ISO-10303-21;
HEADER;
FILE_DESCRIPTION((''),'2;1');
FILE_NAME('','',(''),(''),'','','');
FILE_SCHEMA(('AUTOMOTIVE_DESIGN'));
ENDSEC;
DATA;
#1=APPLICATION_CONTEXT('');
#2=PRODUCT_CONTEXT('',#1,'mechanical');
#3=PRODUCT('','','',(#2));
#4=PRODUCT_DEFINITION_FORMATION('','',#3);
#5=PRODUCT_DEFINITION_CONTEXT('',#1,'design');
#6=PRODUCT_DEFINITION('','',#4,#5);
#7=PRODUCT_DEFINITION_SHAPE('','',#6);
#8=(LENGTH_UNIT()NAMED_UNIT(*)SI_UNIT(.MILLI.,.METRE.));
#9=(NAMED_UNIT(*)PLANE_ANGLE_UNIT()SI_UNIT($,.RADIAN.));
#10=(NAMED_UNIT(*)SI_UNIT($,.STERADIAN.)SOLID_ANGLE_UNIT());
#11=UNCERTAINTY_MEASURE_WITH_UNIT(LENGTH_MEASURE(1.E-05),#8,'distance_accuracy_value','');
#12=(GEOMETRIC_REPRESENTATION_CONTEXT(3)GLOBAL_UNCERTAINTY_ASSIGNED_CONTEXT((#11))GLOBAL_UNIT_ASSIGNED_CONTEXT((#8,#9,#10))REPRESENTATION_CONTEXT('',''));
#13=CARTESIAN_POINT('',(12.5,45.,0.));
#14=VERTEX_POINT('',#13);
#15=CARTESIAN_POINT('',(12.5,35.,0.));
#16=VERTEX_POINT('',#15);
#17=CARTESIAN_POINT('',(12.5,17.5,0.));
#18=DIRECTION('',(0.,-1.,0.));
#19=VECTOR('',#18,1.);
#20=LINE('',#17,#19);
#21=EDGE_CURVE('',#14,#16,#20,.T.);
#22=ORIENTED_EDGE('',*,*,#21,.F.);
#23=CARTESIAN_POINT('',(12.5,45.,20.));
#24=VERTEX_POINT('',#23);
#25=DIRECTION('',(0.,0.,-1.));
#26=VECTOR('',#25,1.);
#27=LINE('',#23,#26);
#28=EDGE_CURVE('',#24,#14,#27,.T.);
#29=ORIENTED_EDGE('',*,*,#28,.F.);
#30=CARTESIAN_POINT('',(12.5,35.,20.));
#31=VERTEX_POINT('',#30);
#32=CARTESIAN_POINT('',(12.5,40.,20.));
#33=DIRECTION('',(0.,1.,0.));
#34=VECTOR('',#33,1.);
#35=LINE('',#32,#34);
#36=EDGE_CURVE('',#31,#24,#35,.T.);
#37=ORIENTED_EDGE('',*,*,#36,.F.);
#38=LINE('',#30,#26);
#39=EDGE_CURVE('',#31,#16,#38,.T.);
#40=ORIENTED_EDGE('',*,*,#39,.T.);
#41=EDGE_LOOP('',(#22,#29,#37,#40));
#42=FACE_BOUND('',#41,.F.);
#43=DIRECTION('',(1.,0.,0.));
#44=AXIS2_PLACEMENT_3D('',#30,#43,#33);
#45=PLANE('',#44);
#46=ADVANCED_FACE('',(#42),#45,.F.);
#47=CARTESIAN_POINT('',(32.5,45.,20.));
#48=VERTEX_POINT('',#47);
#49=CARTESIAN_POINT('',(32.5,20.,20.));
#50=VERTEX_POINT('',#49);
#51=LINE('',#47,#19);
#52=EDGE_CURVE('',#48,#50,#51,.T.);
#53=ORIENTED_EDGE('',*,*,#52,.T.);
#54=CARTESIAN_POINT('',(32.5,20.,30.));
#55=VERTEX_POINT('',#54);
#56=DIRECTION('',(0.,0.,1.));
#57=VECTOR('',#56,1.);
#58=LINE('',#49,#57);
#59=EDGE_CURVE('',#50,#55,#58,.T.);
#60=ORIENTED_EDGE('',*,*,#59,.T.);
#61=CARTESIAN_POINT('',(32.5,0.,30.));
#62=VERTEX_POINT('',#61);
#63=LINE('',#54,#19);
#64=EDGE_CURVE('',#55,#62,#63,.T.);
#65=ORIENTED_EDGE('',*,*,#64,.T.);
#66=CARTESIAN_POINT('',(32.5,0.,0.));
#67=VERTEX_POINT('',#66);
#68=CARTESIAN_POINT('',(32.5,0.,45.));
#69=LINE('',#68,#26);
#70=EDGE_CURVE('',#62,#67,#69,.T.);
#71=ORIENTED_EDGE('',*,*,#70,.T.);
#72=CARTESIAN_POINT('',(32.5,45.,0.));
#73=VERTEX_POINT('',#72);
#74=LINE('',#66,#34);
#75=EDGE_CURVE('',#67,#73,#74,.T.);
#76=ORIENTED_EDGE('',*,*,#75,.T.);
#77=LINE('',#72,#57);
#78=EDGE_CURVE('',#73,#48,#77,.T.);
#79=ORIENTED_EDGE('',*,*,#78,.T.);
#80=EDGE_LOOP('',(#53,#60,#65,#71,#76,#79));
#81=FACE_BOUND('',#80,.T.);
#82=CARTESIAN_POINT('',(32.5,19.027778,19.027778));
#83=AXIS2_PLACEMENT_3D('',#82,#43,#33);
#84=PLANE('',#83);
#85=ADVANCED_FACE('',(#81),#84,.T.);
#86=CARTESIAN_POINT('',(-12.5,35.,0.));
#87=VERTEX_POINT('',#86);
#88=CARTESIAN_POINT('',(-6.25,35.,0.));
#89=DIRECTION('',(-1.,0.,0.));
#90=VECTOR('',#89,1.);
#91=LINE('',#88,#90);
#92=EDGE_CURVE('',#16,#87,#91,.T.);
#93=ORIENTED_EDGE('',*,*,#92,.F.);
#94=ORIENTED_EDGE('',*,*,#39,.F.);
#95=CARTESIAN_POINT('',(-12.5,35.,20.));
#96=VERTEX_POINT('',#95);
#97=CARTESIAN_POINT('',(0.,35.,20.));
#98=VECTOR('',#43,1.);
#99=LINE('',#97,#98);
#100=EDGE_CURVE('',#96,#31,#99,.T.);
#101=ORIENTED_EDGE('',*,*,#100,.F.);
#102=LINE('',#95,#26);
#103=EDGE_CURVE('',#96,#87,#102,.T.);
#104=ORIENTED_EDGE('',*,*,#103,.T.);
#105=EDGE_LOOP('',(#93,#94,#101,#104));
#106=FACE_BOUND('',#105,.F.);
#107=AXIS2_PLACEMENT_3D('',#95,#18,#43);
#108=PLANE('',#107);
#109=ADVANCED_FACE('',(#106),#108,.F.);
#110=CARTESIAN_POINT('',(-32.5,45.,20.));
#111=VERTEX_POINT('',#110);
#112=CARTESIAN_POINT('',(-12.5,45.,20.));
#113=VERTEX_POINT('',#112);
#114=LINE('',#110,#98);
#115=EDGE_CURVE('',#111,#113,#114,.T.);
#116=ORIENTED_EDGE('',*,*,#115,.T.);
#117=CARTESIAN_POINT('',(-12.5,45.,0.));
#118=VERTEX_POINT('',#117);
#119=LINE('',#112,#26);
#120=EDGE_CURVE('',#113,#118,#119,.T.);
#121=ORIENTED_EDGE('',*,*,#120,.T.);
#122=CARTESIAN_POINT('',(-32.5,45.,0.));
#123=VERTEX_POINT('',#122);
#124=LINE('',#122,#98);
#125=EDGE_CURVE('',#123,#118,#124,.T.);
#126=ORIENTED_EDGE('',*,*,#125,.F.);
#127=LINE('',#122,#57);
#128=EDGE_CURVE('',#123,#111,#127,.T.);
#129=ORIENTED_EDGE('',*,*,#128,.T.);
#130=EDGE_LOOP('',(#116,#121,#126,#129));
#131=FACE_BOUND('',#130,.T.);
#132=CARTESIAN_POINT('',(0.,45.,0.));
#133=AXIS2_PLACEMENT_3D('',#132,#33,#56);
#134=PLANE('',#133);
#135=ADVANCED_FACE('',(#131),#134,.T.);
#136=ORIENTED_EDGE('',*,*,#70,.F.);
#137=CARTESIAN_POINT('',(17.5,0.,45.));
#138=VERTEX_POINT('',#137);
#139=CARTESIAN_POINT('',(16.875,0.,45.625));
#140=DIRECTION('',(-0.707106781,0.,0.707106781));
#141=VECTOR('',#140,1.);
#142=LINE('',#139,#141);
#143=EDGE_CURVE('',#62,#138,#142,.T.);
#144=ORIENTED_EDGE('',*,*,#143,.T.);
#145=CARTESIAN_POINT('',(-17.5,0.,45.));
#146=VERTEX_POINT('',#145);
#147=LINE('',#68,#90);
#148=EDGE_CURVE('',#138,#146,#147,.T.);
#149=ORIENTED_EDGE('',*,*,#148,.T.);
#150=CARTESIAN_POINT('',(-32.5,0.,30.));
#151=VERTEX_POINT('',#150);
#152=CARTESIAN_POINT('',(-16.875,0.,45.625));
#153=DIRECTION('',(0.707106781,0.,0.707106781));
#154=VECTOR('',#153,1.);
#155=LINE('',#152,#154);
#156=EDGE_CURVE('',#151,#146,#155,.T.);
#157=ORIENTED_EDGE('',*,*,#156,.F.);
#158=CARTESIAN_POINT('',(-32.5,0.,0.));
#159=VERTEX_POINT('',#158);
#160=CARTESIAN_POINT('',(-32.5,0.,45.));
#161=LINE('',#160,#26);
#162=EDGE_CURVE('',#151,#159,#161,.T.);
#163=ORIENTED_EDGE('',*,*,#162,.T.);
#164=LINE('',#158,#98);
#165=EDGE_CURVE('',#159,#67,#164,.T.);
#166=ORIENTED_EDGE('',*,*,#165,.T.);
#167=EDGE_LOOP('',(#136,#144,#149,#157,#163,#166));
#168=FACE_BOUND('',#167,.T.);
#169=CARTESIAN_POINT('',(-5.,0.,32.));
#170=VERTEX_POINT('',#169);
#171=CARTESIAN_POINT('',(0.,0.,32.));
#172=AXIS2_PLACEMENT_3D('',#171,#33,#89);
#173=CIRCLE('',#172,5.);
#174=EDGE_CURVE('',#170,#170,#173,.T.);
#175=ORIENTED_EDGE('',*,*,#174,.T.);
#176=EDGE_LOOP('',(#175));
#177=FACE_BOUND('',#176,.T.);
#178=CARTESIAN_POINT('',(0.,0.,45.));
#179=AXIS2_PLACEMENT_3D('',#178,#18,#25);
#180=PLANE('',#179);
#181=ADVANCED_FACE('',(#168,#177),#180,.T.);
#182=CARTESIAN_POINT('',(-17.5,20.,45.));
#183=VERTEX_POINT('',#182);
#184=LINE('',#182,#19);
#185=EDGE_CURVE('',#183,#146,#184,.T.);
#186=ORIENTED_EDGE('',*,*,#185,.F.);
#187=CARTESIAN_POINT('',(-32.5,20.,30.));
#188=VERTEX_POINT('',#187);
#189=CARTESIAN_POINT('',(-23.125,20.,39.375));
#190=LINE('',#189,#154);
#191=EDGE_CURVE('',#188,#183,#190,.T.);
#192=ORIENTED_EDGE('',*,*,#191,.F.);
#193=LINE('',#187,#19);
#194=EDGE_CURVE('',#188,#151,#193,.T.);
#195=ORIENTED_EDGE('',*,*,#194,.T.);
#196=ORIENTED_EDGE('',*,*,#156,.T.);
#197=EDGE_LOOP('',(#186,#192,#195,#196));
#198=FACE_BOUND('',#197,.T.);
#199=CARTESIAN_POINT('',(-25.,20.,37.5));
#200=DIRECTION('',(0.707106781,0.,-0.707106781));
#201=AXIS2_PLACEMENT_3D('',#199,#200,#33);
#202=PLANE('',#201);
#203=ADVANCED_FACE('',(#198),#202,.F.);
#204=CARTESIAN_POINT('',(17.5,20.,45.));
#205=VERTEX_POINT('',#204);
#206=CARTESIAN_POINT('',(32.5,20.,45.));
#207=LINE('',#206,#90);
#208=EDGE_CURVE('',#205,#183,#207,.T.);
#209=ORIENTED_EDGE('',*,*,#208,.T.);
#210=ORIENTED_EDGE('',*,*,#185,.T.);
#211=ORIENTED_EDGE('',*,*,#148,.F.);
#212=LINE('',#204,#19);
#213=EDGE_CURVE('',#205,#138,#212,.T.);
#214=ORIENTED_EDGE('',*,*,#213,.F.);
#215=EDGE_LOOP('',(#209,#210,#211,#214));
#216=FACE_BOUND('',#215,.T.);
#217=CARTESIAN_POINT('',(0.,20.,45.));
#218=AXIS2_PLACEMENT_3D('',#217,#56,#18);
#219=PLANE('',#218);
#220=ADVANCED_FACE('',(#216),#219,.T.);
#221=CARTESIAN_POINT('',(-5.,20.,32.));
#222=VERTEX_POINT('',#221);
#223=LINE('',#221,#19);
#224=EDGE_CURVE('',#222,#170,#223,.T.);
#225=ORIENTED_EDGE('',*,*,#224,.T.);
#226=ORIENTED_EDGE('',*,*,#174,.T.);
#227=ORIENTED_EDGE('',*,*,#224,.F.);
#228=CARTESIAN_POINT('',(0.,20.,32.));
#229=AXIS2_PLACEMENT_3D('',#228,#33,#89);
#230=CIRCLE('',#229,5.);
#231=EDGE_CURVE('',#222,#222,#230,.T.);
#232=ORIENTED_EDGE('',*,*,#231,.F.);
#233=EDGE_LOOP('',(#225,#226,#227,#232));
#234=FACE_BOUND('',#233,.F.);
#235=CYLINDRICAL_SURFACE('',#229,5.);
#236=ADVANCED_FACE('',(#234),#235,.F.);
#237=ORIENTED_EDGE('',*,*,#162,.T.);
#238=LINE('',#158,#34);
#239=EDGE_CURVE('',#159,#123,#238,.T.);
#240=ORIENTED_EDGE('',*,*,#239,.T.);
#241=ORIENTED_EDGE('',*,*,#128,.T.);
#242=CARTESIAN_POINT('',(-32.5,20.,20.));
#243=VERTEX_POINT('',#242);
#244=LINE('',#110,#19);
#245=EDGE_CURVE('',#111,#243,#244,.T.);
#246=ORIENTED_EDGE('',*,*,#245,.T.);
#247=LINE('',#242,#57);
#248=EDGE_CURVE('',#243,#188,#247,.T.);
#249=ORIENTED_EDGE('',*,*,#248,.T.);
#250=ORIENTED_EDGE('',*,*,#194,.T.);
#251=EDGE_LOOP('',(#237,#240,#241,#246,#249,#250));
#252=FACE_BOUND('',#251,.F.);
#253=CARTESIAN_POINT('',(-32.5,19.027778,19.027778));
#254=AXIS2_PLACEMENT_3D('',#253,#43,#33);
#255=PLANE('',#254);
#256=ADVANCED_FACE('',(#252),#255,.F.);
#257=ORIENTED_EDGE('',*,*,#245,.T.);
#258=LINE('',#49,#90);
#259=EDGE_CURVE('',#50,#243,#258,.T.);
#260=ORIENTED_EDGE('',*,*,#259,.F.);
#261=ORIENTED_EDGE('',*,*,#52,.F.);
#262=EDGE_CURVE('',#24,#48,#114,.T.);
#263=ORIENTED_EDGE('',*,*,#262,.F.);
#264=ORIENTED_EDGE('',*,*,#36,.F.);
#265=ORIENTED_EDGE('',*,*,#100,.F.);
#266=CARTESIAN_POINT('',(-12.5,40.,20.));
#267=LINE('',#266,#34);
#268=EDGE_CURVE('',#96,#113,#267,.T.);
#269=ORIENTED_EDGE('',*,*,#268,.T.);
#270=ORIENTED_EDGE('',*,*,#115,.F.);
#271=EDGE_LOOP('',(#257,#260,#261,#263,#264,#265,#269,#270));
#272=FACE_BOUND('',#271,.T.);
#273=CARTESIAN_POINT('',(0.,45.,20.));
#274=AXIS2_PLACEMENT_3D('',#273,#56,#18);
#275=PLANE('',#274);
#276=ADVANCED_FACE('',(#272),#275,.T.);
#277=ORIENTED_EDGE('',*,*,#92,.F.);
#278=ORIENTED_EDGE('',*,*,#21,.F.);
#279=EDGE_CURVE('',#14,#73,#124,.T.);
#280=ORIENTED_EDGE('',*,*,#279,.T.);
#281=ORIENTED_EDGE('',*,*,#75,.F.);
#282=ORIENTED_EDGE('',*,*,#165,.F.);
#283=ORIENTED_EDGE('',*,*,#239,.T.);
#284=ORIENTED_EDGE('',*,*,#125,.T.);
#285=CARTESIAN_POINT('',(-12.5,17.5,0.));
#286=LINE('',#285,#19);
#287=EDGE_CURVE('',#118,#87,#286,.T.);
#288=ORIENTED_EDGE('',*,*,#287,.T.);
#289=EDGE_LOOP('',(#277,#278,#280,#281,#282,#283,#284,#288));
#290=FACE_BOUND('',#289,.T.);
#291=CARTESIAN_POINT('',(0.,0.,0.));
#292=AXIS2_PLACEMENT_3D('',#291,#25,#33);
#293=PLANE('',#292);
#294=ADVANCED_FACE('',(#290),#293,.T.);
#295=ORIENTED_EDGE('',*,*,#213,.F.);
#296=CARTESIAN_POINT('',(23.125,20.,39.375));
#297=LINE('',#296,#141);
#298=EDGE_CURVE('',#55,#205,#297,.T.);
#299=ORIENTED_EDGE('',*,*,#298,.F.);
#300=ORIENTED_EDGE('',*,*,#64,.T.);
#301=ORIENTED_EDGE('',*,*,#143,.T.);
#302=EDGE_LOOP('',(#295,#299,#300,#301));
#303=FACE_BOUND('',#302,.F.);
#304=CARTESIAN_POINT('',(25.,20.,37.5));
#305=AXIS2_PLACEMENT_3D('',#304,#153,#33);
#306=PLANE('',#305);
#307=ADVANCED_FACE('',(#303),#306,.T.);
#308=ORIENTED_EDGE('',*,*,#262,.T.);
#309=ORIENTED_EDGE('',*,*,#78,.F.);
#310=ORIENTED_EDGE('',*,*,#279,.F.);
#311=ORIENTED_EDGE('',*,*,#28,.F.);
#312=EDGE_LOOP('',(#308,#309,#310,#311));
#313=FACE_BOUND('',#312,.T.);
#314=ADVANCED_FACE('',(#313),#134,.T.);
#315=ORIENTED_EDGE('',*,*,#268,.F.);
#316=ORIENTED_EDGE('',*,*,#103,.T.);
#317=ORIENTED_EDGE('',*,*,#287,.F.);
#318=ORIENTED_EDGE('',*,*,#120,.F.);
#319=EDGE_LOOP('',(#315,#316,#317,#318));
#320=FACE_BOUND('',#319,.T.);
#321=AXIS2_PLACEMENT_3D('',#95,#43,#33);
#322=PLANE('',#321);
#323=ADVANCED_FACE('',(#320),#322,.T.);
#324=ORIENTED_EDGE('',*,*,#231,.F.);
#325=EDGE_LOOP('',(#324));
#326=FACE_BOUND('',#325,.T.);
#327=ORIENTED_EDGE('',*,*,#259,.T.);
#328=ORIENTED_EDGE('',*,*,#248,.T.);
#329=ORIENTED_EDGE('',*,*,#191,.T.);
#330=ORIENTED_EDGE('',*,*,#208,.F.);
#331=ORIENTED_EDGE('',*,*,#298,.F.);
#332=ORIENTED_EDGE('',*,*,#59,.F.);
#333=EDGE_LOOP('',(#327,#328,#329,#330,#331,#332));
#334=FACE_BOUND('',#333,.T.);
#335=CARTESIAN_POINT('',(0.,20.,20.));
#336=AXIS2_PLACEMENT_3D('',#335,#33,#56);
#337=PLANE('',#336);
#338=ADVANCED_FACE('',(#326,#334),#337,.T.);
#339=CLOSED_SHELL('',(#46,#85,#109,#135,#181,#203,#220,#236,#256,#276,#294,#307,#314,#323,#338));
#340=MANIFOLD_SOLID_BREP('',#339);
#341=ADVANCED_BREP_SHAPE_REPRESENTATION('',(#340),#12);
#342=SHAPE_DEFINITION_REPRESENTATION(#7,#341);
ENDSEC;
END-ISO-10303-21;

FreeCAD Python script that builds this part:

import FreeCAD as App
import Part
import Sketcher

V = App.Vector
Q = App.Units.Quantity


def edges_at(feature, points):
    """Names of the edges that pass closest to the given points."""
    edges = feature.Shape.Edges
    near = lambda p: min(range(len(edges)), key=lambda i: edges[i].distToShape(Part.Vertex(*p))[0])
    return sorted({f"Edge{near(p) + 1}" for p in points})

doc = App.newDocument("Part")
params = doc.addObject("Spreadsheet::Sheet", "Params")
for row, (alias, value) in enumerate([
    ("sketch1_width", "45 mm"),
    ("sketch1_width2", "25 mm"),
    ("pad1_length", "65 mm"),
    ("sketch2_width", "25 mm"),
    ("sketch2_height", "10 mm"),
    ("chamfer_size", "15 mm"),
    ("sketch3_diameter", "10 mm"),
], start=1):
    params.set(f"A{row}", alias)
    params.set(f"B{row}", "=" + value)
    params.setAlias(f"B{row}", alias)

body = doc.addObject("PartDesign::Body", "Body")

sketch1 = body.newObject("Sketcher::SketchObject", "Sketch")
sketch1.AttachmentSupport = (doc.getObject("YZ_Plane"), [""])
sketch1.MapMode = "FlatFace"
sketch1.addGeometry(Part.LineSegment(V(0, 45, 0), V(0, 0, 0)), False)
sketch1.addGeometry(Part.LineSegment(V(0, 0, 0), V(45, 0, 0)), False)
sketch1.addGeometry(Part.LineSegment(V(45, 0, 0), V(45, 20, 0)), False)
sketch1.addGeometry(Part.LineSegment(V(45, 20, 0), V(20, 20, 0)), False)
sketch1.addGeometry(Part.LineSegment(V(20, 20, 0), V(20, 45, 0)), False)
sketch1.addGeometry(Part.LineSegment(V(20, 45, 0), V(0, 45, 0)), False)
sketch1.addConstraint(Sketcher.Constraint("Coincident", 0, 2, 1, 1))
sketch1.addConstraint(Sketcher.Constraint("Coincident", 1, 2, 2, 1))
sketch1.addConstraint(Sketcher.Constraint("Coincident", 2, 2, 3, 1))
sketch1.addConstraint(Sketcher.Constraint("Coincident", 3, 2, 4, 1))
sketch1.addConstraint(Sketcher.Constraint("Coincident", 4, 2, 5, 1))
sketch1.addConstraint(Sketcher.Constraint("Coincident", 5, 2, 0, 1))
sketch1.addConstraint(Sketcher.Constraint("Vertical", 0))
sketch1.addConstraint(Sketcher.Constraint("Horizontal", 1))
sketch1.addConstraint(Sketcher.Constraint("Vertical", 2))
sketch1.addConstraint(Sketcher.Constraint("Horizontal", 3))
sketch1.addConstraint(Sketcher.Constraint("Vertical", 4))
sketch1.addConstraint(Sketcher.Constraint("Horizontal", 5))
sketch1.addConstraint(Sketcher.Constraint("Coincident", 0, 2, -1, 1))
sketch1.addConstraint(Sketcher.Constraint("Equal", 1, 0))
sketch1.addConstraint(Sketcher.Constraint("Equal", 5, 2))
sketch1.addConstraint(Sketcher.Constraint("DistanceX", 1, 1, 1, 2, Q("45 mm")))
sketch1.addConstraint(Sketcher.Constraint("DistanceX", 3, 2, 3, 1, Q("25 mm")))
sketch1.setExpression("Constraints[15]", "Params.sketch1_width")
sketch1.setExpression("Constraints[16]", "Params.sketch1_width2")
pad1 = body.newObject("PartDesign::Pad", "Pad")
pad1.Profile = sketch1
pad1.setExpression("Length", "Params.pad1_length")
pad1.Midplane = True

sketch2 = body.newObject("Sketcher::SketchObject", "Sketch001")
sketch2.AttachmentSupport = (doc.getObject("XY_Plane"), [""])
sketch2.MapMode = "FlatFace"
sketch2.AttachmentOffset = App.Placement(V(0, 0, 20), App.Rotation())
sketch2.addGeometry(Part.LineSegment(V(-12, 45, 0), V(-12, 35, 0)), False)
sketch2.addGeometry(Part.LineSegment(V(-12, 35, 0), V(12, 35, 0)), False)
sketch2.addGeometry(Part.LineSegment(V(12, 35, 0), V(12, 45, 0)), False)
sketch2.addGeometry(Part.LineSegment(V(12, 45, 0), V(-12, 45, 0)), False)
sketch2.addConstraint(Sketcher.Constraint("Coincident", 0, 2, 1, 1))
sketch2.addConstraint(Sketcher.Constraint("Coincident", 1, 2, 2, 1))
sketch2.addConstraint(Sketcher.Constraint("Coincident", 2, 2, 3, 1))
sketch2.addConstraint(Sketcher.Constraint("Coincident", 3, 2, 0, 1))
sketch2.addConstraint(Sketcher.Constraint("Vertical", 0))
sketch2.addConstraint(Sketcher.Constraint("Horizontal", 1))
sketch2.addConstraint(Sketcher.Constraint("Vertical", 2))
sketch2.addConstraint(Sketcher.Constraint("Horizontal", 3))
sketch2.addConstraint(Sketcher.Constraint("DistanceX", 1, 1, 1, 2, Q("25 mm")))
sketch2.addConstraint(Sketcher.Constraint("DistanceY", 0, 2, 0, 1, Q("10 mm")))
sketch2.addConstraint(Sketcher.Constraint("DistanceY", -1, 1, 0, 2, Q("35 mm")))
sketch2.addConstraint(Sketcher.Constraint("DistanceX", 0, 2, -1, 1, Q("12.5 mm")))
sketch2.setExpression("Constraints[8]", "Params.sketch2_width")
sketch2.setExpression("Constraints[9]", "Params.sketch2_height")
pocket1 = body.newObject("PartDesign::Pocket", "Pocket")
pocket1.Profile = sketch2
pocket1.Type = "ThroughAll"
doc.recompute()

chamfer = body.newObject("PartDesign::Chamfer", "Chamfer")
chamfer.Base = (pocket1, edges_at(pocket1, [(32.5, 10, 45), (-32.5, 10, 45)]))
chamfer.setExpression("Size", "Params.chamfer_size")

sketch3 = body.newObject("Sketcher::SketchObject", "Sketch002")
sketch3.AttachmentSupport = (doc.getObject("XZ_Plane"), [""])
sketch3.MapMode = "FlatFace"
sketch3.AttachmentOffset = App.Placement(V(0, 0, -20), App.Rotation())
sketch3.addGeometry(Part.Circle(V(0, 32, 0), V(0, 0, 1), 5), False)
sketch3.addConstraint(Sketcher.Constraint("PointOnObject", 0, 3, -2))
sketch3.addConstraint(Sketcher.Constraint("Diameter", 0, Q("10 mm")))
sketch3.addConstraint(Sketcher.Constraint("DistanceY", -1, 1, 0, 3, Q("32 mm")))
sketch3.setExpression("Constraints[1]", "Params.sketch3_diameter")
pocket2 = body.newObject("PartDesign::Pocket", "Pocket001")
pocket2.Profile = sketch3
pocket2.Type = "ThroughAll"
pocket2.Reversed = True

doc.recompute()
